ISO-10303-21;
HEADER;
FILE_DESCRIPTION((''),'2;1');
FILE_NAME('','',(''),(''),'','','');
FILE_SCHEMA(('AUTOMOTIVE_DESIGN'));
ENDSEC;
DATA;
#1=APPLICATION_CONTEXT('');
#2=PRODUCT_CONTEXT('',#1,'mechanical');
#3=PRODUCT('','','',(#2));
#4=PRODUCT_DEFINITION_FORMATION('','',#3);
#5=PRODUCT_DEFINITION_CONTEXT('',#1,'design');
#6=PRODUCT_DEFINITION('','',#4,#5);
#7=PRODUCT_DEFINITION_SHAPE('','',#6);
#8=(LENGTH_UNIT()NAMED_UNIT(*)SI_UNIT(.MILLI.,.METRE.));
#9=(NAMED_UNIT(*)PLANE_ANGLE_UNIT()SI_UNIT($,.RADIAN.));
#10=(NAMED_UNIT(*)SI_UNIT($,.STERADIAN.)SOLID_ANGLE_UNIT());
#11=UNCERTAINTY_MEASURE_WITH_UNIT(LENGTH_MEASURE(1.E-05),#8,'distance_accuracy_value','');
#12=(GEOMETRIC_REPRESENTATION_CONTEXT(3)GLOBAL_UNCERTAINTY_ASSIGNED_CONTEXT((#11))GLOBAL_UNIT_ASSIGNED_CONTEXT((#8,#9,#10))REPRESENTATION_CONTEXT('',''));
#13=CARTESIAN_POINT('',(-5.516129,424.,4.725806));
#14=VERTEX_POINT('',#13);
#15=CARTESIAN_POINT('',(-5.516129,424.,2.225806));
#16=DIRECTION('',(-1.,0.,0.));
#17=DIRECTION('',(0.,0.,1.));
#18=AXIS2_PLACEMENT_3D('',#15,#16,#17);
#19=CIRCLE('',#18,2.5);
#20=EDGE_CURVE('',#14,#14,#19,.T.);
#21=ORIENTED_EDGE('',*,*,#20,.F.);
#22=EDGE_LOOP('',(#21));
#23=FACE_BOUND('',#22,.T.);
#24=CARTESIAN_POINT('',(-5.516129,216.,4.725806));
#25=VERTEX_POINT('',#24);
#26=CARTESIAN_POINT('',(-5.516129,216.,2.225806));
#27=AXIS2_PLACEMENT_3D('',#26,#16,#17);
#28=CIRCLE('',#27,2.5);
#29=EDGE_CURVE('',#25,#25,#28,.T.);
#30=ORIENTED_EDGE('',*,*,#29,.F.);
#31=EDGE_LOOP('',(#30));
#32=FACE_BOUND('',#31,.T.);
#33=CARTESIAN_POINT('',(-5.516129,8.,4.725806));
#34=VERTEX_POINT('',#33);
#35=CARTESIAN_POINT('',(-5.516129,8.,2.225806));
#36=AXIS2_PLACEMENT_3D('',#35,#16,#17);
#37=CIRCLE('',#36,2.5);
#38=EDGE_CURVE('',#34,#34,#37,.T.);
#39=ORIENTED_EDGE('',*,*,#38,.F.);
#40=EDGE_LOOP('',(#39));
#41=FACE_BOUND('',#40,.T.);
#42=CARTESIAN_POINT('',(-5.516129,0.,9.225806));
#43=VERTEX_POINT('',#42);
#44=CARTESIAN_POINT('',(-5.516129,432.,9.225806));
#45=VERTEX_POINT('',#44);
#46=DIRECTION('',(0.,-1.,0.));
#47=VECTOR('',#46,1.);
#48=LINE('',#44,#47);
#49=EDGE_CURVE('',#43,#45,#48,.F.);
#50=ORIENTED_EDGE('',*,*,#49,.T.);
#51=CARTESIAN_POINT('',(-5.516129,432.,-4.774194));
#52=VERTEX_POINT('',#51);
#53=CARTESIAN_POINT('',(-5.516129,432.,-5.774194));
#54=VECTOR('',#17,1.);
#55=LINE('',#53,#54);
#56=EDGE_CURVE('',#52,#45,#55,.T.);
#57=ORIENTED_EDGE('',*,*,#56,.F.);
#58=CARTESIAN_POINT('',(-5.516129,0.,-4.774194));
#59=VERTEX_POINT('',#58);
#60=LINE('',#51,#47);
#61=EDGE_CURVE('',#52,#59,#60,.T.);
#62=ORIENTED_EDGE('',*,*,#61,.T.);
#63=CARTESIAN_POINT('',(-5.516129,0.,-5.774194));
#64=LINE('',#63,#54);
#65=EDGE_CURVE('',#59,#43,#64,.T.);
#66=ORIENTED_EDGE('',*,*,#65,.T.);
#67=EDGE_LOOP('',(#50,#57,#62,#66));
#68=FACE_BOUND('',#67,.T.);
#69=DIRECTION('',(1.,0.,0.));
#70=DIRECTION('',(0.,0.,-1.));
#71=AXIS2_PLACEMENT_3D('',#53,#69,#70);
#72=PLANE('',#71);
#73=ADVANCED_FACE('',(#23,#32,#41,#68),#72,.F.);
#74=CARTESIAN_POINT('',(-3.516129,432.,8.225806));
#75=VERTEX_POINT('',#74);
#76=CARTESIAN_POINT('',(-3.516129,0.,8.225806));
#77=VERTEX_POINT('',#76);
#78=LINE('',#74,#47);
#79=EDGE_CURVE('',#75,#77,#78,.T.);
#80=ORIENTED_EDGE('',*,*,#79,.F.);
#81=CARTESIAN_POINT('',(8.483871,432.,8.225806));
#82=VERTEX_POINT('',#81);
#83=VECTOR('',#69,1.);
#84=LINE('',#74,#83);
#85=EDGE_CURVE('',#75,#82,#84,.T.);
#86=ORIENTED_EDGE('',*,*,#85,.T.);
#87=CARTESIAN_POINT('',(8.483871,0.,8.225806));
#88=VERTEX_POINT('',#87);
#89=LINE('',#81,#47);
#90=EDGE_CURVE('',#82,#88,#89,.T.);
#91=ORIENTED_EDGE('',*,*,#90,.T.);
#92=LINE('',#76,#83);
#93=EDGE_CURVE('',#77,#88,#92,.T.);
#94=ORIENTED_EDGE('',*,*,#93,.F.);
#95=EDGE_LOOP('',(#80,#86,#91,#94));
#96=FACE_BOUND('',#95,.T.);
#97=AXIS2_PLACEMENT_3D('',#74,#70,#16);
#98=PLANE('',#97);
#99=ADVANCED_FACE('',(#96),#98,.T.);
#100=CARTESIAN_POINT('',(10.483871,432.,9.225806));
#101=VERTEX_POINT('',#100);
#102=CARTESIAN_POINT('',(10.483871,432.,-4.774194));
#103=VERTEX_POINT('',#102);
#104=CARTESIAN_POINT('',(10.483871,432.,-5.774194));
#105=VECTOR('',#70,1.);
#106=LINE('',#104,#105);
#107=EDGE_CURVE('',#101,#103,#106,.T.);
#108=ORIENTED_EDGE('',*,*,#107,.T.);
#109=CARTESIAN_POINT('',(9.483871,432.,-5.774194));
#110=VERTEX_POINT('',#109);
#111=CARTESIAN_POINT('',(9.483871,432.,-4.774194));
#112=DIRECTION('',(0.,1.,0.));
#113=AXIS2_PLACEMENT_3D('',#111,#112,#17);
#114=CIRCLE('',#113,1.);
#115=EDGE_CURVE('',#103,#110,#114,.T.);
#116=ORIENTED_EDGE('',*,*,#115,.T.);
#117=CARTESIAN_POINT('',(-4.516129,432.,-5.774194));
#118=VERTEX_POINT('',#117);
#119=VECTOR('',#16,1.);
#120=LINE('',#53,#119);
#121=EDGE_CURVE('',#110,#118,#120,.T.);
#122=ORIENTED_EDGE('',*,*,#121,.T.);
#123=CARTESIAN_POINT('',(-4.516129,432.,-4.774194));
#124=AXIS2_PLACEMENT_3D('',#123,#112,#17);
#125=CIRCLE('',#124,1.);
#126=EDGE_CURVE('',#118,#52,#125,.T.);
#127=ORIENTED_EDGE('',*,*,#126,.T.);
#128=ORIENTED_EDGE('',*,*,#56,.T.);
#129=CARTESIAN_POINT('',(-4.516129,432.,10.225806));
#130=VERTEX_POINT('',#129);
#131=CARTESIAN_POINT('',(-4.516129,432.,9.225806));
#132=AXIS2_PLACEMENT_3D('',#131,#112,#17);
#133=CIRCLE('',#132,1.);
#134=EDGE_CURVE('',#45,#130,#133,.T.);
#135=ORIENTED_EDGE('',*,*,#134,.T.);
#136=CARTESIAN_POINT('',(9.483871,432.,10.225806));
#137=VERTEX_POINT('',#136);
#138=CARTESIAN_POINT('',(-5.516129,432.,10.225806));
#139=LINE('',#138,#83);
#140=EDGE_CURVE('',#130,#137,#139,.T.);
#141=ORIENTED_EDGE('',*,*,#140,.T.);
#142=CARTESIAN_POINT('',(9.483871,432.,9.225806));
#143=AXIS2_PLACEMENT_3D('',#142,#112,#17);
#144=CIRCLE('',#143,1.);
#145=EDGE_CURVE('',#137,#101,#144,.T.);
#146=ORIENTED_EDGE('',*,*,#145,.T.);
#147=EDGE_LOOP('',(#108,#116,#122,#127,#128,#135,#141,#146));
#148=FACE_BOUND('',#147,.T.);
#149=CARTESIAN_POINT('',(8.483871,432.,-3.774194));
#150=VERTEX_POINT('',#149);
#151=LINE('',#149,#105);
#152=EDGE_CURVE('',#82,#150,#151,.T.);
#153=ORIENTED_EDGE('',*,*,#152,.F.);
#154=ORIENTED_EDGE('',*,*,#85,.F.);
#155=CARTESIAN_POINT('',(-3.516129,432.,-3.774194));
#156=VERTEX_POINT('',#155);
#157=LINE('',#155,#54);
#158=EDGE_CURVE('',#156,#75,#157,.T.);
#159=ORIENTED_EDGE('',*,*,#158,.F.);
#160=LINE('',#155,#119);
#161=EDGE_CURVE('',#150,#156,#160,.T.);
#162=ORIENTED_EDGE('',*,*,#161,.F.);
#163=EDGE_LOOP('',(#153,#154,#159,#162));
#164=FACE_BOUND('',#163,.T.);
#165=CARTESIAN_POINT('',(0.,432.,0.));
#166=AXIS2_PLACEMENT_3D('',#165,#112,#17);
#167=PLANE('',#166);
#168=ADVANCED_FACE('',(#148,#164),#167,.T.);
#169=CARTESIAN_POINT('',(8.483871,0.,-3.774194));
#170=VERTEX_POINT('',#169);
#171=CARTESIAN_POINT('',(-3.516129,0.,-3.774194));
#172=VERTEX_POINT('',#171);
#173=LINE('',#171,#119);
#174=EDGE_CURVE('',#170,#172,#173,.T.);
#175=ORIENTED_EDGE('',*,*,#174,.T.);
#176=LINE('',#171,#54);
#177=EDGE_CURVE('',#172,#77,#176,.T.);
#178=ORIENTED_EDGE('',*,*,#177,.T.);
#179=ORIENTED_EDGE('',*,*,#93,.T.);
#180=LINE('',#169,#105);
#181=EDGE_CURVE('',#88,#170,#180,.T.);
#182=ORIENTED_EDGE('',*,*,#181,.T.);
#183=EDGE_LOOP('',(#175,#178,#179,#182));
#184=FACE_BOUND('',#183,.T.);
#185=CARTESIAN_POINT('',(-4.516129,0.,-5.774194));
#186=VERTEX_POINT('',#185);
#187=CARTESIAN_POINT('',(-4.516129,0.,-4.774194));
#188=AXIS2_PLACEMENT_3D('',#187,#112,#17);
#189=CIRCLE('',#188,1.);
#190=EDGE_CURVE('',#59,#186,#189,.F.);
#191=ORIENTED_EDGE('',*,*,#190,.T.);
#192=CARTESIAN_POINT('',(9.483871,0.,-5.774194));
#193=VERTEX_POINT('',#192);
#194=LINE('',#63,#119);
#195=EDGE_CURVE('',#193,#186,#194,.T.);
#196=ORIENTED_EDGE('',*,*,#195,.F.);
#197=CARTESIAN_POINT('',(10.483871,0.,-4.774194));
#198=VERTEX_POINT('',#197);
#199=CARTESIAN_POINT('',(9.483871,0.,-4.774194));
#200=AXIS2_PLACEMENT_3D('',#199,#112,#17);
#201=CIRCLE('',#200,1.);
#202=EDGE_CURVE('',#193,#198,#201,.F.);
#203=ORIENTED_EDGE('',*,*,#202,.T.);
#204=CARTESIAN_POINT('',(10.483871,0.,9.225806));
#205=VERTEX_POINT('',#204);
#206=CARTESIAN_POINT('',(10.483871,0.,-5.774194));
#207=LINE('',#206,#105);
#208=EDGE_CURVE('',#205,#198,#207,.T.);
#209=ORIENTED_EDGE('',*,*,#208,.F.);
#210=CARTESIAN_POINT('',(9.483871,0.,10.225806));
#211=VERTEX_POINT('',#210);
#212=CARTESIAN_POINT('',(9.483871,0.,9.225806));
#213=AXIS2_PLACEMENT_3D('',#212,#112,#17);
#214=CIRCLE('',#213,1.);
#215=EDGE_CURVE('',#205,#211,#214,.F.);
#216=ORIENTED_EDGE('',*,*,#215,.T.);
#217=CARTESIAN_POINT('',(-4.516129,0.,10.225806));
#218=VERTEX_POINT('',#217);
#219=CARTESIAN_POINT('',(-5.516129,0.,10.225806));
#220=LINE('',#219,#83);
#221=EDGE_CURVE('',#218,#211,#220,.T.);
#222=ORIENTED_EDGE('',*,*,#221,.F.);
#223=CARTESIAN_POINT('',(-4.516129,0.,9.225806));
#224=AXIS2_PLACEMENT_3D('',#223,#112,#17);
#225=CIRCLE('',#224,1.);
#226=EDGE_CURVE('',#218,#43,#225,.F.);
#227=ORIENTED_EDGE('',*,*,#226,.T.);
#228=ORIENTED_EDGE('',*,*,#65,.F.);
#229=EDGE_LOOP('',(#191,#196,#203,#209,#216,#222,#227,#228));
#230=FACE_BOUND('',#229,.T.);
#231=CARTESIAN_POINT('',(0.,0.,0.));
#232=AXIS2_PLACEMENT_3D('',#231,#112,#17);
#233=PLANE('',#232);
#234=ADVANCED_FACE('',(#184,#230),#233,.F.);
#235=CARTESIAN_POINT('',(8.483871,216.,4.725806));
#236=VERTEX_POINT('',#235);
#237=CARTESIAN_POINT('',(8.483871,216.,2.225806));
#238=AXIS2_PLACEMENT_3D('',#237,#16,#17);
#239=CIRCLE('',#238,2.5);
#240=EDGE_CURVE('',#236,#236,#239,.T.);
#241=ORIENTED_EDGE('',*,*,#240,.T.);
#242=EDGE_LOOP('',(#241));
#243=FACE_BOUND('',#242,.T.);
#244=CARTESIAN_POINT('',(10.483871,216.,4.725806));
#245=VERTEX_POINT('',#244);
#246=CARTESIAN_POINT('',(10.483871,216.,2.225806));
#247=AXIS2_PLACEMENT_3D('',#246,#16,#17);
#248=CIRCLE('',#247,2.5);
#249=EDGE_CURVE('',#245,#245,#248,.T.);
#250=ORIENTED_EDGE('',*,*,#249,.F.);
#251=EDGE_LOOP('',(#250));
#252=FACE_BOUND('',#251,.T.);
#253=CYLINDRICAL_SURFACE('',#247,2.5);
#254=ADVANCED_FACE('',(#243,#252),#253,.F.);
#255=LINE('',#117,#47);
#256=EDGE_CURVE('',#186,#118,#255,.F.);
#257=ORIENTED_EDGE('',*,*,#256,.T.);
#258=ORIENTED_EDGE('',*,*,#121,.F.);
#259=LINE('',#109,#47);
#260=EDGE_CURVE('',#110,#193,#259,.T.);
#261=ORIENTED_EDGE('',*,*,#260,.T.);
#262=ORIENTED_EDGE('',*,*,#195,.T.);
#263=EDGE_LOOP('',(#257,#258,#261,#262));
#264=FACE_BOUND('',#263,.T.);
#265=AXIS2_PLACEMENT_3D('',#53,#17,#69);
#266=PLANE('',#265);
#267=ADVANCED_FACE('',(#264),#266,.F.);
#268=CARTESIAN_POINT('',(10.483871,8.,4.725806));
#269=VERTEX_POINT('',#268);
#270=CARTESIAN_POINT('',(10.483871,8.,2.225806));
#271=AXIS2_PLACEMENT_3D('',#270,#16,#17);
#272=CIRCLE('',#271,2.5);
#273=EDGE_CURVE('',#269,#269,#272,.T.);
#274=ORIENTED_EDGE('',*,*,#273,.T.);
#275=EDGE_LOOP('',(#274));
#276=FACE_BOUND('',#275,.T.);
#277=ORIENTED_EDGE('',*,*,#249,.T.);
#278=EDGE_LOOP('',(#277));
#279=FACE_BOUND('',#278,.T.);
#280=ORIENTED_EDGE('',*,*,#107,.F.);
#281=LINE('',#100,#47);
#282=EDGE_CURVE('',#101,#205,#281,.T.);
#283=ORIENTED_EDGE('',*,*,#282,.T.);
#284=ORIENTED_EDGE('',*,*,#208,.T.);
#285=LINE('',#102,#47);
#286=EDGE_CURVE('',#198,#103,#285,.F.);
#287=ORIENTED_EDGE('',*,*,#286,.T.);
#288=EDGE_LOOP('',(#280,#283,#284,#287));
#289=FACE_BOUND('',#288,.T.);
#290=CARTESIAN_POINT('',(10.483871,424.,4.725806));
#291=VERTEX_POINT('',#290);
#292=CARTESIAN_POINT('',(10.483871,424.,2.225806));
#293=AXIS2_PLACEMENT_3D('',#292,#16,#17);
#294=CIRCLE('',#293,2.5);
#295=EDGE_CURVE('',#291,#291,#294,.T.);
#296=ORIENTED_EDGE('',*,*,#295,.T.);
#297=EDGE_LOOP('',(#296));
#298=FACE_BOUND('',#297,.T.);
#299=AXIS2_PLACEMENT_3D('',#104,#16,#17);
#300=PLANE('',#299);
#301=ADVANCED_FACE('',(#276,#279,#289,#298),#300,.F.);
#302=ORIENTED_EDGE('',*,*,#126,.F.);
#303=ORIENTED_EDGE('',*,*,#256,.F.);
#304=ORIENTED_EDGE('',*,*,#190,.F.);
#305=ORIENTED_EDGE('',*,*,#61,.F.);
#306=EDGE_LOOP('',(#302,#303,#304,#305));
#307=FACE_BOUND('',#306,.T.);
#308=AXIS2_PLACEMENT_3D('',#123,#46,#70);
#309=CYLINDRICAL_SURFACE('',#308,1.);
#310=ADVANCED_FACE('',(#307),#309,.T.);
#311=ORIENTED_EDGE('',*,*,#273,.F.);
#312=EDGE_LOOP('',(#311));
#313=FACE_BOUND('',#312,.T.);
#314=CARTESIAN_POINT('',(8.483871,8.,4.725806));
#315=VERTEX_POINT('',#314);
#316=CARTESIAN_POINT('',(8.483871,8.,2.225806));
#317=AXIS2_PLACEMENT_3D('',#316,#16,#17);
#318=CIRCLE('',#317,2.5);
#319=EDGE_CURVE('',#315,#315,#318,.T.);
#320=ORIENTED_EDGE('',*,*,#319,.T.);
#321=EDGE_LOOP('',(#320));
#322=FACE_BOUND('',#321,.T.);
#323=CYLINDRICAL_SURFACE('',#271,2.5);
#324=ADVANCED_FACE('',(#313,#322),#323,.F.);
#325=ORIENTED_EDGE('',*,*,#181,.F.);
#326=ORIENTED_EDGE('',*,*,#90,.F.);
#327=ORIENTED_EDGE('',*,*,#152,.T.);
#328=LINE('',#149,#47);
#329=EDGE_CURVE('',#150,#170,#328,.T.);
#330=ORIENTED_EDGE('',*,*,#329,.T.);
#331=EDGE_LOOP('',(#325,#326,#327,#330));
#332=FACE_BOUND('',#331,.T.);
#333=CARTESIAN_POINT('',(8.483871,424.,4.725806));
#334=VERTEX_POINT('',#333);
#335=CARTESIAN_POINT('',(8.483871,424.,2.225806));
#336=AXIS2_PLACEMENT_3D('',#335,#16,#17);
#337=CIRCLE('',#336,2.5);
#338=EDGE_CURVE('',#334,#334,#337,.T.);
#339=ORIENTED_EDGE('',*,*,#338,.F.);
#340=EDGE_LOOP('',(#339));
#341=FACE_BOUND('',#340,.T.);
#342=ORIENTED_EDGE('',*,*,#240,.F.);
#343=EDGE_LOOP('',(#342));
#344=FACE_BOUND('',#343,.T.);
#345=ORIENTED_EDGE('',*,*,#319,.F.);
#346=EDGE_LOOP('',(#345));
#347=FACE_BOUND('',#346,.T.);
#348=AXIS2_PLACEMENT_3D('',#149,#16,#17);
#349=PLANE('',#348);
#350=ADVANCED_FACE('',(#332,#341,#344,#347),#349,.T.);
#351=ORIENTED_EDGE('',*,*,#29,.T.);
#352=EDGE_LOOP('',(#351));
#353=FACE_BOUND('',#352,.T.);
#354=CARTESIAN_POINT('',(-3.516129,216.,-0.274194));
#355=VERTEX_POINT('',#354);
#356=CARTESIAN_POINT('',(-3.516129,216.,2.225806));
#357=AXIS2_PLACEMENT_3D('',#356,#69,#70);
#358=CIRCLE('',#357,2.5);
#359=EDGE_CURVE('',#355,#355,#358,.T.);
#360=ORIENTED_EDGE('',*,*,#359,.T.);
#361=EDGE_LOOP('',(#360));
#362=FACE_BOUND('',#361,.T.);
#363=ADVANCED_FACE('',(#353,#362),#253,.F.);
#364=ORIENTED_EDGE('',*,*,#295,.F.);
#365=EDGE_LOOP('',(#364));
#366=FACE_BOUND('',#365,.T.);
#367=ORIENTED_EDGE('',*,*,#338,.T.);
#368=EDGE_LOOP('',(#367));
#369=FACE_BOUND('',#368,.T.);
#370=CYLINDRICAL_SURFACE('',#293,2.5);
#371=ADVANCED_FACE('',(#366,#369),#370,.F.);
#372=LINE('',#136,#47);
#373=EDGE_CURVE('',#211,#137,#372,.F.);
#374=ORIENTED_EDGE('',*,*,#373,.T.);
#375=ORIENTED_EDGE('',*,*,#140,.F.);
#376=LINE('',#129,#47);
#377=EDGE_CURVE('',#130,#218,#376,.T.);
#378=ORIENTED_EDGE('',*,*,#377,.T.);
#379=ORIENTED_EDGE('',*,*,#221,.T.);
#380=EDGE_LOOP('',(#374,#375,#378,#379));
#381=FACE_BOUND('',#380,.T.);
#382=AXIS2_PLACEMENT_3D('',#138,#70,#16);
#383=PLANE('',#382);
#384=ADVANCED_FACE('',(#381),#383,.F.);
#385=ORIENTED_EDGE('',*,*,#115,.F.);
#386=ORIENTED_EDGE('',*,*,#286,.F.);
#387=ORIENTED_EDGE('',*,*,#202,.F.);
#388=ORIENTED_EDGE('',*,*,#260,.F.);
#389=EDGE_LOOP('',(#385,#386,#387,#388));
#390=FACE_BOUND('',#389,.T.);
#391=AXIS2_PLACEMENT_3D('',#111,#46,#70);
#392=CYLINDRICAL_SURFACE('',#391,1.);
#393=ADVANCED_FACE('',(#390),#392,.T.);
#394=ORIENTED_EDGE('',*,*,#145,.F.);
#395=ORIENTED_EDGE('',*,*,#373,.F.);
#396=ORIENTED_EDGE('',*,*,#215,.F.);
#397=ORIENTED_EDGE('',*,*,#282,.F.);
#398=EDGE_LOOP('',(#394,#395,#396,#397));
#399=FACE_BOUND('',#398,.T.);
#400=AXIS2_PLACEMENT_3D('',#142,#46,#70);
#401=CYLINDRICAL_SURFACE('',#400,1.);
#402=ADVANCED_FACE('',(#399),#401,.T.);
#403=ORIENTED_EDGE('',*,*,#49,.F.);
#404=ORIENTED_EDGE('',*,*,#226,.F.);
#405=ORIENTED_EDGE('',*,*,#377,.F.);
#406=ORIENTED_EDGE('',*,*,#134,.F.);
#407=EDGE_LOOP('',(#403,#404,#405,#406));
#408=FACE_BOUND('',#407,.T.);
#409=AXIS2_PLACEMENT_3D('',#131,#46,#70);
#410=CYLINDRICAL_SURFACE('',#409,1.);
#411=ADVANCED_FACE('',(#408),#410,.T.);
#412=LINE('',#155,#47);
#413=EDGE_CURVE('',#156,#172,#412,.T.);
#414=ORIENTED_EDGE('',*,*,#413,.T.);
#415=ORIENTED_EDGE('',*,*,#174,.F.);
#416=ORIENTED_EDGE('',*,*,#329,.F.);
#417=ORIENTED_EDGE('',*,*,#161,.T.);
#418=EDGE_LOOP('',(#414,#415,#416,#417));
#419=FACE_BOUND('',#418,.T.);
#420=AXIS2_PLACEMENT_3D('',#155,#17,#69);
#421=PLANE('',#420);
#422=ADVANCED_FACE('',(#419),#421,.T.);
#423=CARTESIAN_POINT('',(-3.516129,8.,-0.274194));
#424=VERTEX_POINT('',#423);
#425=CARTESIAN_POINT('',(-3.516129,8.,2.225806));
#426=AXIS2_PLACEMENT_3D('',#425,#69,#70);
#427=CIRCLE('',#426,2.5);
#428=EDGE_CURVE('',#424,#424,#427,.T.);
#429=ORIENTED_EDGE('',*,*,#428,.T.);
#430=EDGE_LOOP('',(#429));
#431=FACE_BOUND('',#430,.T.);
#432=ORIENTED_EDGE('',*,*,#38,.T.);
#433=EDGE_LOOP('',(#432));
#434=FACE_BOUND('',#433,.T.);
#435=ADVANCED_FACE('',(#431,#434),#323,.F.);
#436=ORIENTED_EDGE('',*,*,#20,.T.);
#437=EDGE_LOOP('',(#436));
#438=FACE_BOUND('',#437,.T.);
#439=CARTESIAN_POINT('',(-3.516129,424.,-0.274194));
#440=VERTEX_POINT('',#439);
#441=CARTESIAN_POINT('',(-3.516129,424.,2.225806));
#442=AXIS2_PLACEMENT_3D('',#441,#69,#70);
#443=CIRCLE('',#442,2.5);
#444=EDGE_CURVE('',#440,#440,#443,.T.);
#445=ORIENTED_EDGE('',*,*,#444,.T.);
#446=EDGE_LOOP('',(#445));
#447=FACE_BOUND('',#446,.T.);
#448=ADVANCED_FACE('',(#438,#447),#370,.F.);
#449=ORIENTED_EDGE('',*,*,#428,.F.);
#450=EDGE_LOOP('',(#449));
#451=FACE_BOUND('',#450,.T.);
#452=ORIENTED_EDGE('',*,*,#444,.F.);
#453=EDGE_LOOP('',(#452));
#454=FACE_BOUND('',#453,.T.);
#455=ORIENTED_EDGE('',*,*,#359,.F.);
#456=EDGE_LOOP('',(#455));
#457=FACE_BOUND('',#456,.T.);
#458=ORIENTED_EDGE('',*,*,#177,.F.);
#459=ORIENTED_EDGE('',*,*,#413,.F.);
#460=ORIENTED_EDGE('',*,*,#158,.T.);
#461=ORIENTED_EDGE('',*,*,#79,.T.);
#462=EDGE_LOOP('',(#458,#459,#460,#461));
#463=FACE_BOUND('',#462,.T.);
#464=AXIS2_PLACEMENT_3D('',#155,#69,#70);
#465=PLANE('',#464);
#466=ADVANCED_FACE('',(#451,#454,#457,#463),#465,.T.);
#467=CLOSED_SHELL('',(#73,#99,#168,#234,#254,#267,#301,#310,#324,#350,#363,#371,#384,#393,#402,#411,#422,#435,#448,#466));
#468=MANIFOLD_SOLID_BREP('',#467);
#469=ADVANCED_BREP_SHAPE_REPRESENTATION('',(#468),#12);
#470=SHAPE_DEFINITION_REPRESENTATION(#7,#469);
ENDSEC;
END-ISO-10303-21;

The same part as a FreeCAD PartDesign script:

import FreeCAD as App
import Part
import Sketcher
from FreeCAD import Vector
Q = App.Units.Quantity


def edges_at(feature, points):
    """Names of the edges that pass closest to the given points."""
    edges = feature.Shape.Edges
    near = lambda p: min(range(len(edges)), key=lambda i: edges[i].distToShape(Part.Vertex(*p))[0])
    return sorted({f"Edge{near(p) + 1}" for p in points})


def add_polygon(sketch, points):
    """Adds a closed chain of lines whose ends are joined by coincident constraints."""
    first, n = sketch.GeometryCount, len(points)
    for a, b in zip(points, points[1:] + points[:1]):
        sketch.addGeometry(Part.LineSegment(App.Vector(*a, 0), App.Vector(*b, 0)), False)
    for i in range(n):
        sketch.addConstraint(Sketcher.Constraint("Coincident", first + i, 2, first + (i + 1) % n, 1))

doc = App.newDocument("Part")
body = doc.addObject("PartDesign::Body", "Body")

sketch1 = doc.addObject("Sketcher::SketchObject", "Sketch")
body.addObject(sketch1)
sketch1.AttachmentSupport = (doc.XZ_Plane, [""])
sketch1.MapMode = "FlatFace"
add_polygon(sketch1, [(-5.516129, -5.774194), (-5.516129, 10.225806), (10.483871, 10.225806), (10.483871, -5.774194)])
add_polygon(sketch1, [(8.483871, 8.225806), (-3.516129, 8.225806), (-3.516129, -3.774194), (8.483871, -3.774194)])
sketch1.addConstraint(Sketcher.Constraint("Vertical", 0))
sketch1.addConstraint(Sketcher.Constraint("Horizontal", 1))
sketch1.addConstraint(Sketcher.Constraint("Vertical", 2))
sketch1.addConstraint(Sketcher.Constraint("Horizontal", 3))
sketch1.addConstraint(Sketcher.Constraint("Horizontal", 4))
sketch1.addConstraint(Sketcher.Constraint("Vertical", 5))
sketch1.addConstraint(Sketcher.Constraint("Horizontal", 6))
sketch1.addConstraint(Sketcher.Constraint("Vertical", 7))
sketch1.addConstraint(Sketcher.Constraint("Equal", 3, 0))
sketch1.addConstraint(Sketcher.Constraint("Equal", 6, 5))
sketch1.addConstraint(Sketcher.Constraint("DistanceX", 1, 1, 1, 2, Q("16 mm")))
sketch1.addConstraint(Sketcher.Constraint("DistanceX", 4, 2, 4, 1, Q("12 mm")))
sketch1.addConstraint(Sketcher.Constraint("DistanceX", 0, 2, 4, 2, Q("2 mm")))
sketch1.addConstraint(Sketcher.Constraint("DistanceY", 4, 2, 0, 2, Q("2 mm")))
sketch1.addConstraint(Sketcher.Constraint("DistanceX", 0, 2, -1, 1, Q("5.516129 mm")))
sketch1.addConstraint(Sketcher.Constraint("DistanceY", -1, 1, 0, 2, Q("10.225806 mm")))
pad1 = doc.addObject("PartDesign::Pad", "Pad")
body.addObject(pad1)
pad1.Profile = sketch1
pad1.Length = 432
pad1.Reversed = True
doc.recompute()

fillet = doc.addObject("PartDesign::Fillet", "Fillet")
body.addObject(fillet)
fillet.Base = (pad1, edges_at(pad1, [
    (-5.516, 216, -5.774),
    (10.484, 216, -5.774),
    (10.484, 216, 10.226),
    (-5.516, 216, 10.226),
]))
fillet.Radius = 1

sketch2 = doc.addObject("Sketcher::SketchObject", "Sketch001")
body.addObject(sketch2)
sketch2.AttachmentSupport = (doc.YZ_Plane, [""])
sketch2.MapMode = "FlatFace"
sketch2.AttachmentOffset = App.Placement(Vector(0, 0, -5.516129), App.Rotation())
sketch2.addGeometry(Part.Circle(Vector(424, 2.225806, 0), Vector(0, 0, 1), 2.5), False)
sketch2.addGeometry(Part.Circle(Vector(8, 2.225806, 0), Vector(0, 0, 1), 2.5), False)
sketch2.addConstraint(Sketcher.Constraint("Equal", 0, 1))
sketch2.addConstraint(Sketcher.Constraint("Horizontal", 0, 3, 1, 3))
sketch2.addConstraint(Sketcher.Constraint("Diameter", 0, Q("5 mm")))
sketch2.addConstraint(Sketcher.Constraint("DistanceX", -1, 1, 0, 3, Q("424 mm")))
sketch2.addConstraint(Sketcher.Constraint("DistanceX", -1, 1, 1, 3, Q("8 mm")))
sketch2.addConstraint(Sketcher.Constraint("DistanceY", -1, 1, 0, 3, Q("2.225806 mm")))
pocket1 = doc.addObject("PartDesign::Pocket", "Pocket")
body.addObject(pocket1)
pocket1.Profile = sketch2
pocket1.Length = 16
pocket1.Reversed = True

sketch3 = doc.addObject("Sketcher::SketchObject", "Sketch002")
body.addObject(sketch3)
sketch3.AttachmentSupport = (doc.YZ_Plane, [""])
sketch3.MapMode = "FlatFace"
sketch3.AttachmentOffset = App.Placement(Vector(0, 0, -5.516129), App.Rotation())
sketch3.addGeometry(Part.Circle(Vector(216, 2.225806, 0), Vector(0, 0, 1), 2.5), False)
sketch3.addConstraint(Sketcher.Constraint("Diameter", 0, Q("5 mm")))
sketch3.addConstraint(Sketcher.Constraint("DistanceX", -1, 1, 0, 3, Q("216 mm")))
sketch3.addConstraint(Sketcher.Constraint("DistanceY", -1, 1, 0, 3, Q("2.225806 mm")))
pocket2 = doc.addObject("PartDesign::Pocket", "Pocket001")
body.addObject(pocket2)
pocket2.Profile = sketch3
pocket2.Length = 16
pocket2.Reversed = True

doc.recompute()
